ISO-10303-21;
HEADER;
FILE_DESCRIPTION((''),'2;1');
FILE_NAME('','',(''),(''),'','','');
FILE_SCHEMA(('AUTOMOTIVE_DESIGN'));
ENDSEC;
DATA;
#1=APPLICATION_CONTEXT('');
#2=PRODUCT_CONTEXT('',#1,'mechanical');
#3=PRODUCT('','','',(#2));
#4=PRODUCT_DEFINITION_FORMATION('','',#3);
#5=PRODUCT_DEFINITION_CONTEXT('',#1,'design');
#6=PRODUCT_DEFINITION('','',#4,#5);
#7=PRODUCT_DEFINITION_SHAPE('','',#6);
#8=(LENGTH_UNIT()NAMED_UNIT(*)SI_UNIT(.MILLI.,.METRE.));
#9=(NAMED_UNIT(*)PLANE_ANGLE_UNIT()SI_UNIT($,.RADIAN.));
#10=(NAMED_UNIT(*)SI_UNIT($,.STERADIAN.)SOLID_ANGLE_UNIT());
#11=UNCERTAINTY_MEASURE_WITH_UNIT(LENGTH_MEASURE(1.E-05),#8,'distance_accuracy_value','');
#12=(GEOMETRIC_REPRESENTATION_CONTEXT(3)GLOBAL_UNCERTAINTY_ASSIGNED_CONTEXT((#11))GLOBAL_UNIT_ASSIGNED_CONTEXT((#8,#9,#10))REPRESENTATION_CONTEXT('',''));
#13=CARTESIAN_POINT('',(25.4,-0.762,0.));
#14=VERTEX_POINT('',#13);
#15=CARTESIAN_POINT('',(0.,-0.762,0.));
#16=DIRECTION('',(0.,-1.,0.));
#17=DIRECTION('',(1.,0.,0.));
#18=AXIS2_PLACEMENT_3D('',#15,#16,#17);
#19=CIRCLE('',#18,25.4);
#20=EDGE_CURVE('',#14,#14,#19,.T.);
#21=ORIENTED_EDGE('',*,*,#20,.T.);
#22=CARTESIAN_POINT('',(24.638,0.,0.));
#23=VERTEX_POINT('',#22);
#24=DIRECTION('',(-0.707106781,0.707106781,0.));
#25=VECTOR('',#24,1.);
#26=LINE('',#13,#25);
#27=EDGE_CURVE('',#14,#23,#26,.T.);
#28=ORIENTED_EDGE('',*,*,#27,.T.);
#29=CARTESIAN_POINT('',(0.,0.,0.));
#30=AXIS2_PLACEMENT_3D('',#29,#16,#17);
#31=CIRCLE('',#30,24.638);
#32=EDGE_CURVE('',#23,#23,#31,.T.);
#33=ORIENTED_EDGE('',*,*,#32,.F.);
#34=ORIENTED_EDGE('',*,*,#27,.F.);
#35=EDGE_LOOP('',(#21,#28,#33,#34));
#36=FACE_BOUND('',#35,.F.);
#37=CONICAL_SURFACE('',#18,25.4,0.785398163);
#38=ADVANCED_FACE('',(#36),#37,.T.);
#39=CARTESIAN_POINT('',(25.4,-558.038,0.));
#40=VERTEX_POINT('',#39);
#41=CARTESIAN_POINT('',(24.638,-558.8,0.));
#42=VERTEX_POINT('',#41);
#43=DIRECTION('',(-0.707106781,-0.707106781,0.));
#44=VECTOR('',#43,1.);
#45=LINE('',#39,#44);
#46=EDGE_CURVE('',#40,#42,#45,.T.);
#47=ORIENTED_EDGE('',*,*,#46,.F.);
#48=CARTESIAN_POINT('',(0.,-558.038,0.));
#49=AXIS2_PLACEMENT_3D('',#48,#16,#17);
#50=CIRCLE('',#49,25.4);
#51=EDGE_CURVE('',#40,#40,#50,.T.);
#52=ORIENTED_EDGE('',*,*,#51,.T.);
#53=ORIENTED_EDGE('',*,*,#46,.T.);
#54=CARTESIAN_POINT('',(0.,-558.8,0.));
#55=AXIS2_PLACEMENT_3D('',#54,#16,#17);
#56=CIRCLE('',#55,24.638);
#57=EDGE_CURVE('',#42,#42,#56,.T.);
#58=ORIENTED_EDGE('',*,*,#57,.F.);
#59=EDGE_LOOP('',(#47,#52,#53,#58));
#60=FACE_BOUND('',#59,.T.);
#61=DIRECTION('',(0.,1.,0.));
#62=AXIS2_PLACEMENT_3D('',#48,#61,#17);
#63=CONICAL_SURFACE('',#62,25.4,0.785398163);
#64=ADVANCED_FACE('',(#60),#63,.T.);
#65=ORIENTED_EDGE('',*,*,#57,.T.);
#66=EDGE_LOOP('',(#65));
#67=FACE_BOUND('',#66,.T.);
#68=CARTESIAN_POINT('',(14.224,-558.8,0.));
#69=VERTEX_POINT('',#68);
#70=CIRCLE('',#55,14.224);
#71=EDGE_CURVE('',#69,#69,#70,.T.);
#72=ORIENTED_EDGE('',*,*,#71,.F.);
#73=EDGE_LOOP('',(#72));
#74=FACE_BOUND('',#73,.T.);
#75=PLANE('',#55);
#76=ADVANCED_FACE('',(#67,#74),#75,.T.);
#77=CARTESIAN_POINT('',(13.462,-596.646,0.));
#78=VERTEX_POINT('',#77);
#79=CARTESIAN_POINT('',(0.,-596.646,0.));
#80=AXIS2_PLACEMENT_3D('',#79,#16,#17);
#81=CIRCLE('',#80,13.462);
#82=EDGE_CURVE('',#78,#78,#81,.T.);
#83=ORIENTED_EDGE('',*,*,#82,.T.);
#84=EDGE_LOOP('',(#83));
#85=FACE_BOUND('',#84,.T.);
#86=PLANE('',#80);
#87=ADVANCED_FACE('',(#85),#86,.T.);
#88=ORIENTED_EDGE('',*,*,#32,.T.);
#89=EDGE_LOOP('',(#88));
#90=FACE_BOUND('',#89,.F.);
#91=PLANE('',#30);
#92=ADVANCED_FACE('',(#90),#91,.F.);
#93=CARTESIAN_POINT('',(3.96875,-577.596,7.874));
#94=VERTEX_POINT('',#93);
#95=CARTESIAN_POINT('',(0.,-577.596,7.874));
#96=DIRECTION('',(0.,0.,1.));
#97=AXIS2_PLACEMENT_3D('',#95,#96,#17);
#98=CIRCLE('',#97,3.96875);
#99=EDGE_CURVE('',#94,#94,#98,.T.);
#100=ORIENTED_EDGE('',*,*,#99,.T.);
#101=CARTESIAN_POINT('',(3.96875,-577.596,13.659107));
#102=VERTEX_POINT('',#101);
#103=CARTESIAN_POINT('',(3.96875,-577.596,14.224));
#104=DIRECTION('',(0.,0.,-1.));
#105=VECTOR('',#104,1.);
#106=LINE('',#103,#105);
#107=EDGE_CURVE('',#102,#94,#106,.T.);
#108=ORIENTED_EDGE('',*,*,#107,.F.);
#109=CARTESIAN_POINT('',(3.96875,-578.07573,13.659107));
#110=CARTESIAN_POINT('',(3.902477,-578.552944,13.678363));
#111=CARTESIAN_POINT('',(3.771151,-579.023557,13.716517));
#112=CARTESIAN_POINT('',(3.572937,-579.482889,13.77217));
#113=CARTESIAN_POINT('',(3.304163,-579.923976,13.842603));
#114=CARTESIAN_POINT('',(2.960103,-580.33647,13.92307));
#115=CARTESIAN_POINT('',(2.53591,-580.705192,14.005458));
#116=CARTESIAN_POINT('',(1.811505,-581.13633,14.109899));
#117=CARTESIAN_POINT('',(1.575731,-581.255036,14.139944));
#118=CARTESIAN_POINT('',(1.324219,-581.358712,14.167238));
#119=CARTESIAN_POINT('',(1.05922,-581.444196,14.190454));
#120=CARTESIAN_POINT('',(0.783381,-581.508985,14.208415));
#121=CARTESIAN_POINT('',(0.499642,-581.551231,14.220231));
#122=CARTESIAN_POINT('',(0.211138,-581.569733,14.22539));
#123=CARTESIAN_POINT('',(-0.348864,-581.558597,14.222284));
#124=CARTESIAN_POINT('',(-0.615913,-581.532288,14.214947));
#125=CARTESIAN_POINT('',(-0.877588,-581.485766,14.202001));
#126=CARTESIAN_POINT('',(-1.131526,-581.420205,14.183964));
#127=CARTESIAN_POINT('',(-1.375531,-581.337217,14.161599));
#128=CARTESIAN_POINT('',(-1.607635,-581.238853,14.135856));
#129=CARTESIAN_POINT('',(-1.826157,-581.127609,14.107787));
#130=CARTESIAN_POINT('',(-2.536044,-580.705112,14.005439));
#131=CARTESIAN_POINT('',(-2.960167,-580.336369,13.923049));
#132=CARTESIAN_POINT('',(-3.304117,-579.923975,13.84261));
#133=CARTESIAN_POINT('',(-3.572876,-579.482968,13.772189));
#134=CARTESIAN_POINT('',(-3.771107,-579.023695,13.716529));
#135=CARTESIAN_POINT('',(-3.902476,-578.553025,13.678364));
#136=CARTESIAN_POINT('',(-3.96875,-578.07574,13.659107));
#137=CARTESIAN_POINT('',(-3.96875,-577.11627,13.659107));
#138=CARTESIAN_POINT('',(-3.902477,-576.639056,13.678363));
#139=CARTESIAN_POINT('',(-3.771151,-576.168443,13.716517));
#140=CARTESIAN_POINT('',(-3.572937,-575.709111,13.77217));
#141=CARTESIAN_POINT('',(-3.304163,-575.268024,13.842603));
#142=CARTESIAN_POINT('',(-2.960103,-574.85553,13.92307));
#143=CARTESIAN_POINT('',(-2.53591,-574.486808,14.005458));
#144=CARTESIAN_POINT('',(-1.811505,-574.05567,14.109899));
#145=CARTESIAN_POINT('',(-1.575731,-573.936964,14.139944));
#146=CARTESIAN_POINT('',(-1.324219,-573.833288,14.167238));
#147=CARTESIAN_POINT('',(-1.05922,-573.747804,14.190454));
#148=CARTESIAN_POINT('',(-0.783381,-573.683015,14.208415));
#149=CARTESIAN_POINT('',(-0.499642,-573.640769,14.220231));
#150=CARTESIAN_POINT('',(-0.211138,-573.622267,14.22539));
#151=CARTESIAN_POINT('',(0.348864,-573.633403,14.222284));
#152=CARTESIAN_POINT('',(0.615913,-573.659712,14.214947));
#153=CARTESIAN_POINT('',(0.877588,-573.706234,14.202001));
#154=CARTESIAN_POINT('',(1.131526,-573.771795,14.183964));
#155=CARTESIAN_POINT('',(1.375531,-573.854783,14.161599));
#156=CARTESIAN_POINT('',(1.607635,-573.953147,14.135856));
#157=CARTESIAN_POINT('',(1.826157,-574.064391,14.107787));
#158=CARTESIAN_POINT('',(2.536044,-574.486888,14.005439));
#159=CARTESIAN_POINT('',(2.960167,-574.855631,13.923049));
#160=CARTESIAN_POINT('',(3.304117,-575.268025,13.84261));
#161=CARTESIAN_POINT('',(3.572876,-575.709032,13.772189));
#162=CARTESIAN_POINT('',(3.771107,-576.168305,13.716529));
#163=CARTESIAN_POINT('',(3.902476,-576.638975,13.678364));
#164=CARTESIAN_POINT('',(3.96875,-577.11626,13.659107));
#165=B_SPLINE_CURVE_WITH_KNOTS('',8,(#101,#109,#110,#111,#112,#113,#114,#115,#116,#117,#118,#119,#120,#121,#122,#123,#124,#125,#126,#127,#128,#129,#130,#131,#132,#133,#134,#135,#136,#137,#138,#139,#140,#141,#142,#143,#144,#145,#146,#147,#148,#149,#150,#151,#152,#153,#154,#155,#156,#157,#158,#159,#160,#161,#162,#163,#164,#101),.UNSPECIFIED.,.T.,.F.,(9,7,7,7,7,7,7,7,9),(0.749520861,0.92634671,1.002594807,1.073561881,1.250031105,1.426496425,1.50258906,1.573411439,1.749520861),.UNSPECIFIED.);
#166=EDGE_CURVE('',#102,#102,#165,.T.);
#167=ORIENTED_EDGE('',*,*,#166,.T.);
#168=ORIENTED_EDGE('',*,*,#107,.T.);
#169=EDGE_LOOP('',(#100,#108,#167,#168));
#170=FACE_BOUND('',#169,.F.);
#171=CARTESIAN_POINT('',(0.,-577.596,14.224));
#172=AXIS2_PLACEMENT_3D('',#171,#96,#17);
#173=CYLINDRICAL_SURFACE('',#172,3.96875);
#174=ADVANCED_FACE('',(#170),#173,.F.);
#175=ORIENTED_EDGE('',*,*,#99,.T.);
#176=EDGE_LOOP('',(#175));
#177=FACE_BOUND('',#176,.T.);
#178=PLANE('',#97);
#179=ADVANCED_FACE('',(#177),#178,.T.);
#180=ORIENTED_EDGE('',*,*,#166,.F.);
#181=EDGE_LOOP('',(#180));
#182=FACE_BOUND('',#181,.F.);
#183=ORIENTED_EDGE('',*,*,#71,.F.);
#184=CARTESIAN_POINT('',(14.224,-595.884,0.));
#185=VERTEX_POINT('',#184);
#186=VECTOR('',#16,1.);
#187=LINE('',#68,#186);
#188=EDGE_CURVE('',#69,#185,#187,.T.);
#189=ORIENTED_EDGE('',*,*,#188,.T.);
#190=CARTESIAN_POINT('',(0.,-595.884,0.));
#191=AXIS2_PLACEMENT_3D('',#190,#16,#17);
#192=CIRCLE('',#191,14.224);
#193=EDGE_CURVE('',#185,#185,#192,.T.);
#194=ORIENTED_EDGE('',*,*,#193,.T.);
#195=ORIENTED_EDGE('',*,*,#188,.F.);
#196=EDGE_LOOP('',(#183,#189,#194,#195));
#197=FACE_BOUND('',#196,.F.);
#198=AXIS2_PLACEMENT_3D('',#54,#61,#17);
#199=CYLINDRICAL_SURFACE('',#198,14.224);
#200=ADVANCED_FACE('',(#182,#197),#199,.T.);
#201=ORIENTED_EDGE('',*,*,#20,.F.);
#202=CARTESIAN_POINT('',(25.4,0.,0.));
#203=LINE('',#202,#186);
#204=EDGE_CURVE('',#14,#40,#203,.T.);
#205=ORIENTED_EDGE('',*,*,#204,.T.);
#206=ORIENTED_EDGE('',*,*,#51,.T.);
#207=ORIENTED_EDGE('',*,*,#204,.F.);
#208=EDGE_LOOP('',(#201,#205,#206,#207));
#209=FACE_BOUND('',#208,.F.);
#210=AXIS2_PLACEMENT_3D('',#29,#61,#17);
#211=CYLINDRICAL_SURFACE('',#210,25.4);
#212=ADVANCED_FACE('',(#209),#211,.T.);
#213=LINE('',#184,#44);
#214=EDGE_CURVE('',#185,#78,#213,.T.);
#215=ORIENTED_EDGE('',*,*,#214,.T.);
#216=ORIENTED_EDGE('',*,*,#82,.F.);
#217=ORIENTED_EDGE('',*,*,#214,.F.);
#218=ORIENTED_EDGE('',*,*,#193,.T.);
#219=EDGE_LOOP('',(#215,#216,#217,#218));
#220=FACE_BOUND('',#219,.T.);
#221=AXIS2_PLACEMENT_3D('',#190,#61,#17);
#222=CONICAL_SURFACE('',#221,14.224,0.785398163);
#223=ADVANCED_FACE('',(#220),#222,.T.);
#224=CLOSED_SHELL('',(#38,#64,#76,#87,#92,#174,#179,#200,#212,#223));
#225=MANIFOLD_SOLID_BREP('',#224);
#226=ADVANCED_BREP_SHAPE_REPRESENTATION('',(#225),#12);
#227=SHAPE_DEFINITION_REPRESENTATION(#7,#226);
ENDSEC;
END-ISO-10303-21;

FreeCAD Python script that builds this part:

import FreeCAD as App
import Part
import Sketcher
Q = App.Units.Quantity


def edges_at(feature, points):
    """Names of the edges that pass closest to the given points."""
    edges = feature.Shape.Edges
    near = lambda p: min(range(len(edges)), key=lambda i: edges[i].distToShape(Part.Vertex(*p))[0])
    return sorted({f"Edge{near(p) + 1}" for p in points})

doc = App.newDocument("Part")
body = doc.addObject("PartDesign::Body", "Body")

# Sketch on XZ plane
sketch1 = doc.addObject("Sketcher::SketchObject", "Sketch")
body.addObject(sketch1)
sketch1.AttachmentSupport = (doc.XZ_Plane, [""])
sketch1.MapMode = "FlatFace"
sketch1.addGeometry(Part.Circle(App.Vector(0, 0, 0), App.Vector(0, 0, 1), 25.4), False)
sketch1.addConstraint(Sketcher.Constraint("Coincident", 0, 3, -1, 1))
sketch1.addConstraint(Sketcher.Constraint("Diameter", 0, Q("2 in")))
pad1 = doc.addObject("PartDesign::Pad", "Pad")
body.addObject(pad1)
pad1.Profile = sketch1
pad1.Length = Q("22 in")

# Sketch on XZ plane
sketch2 = doc.addObject("Sketcher::SketchObject", "Sketch001")
body.addObject(sketch2)
sketch2.AttachmentSupport = (doc.XZ_Plane, [""])
sketch2.MapMode = "FlatFace"
sketch2.AttachmentOffset = App.Placement(App.Vector(0, 0, 22 * 25.4), App.Rotation())
sketch2.addGeometry(Part.Circle(App.Vector(0, 0, 0), App.Vector(0, 0, 1), 14.224), False)
sketch2.addConstraint(Sketcher.Constraint("Coincident", 0, 3, -1, 1))
sketch2.addConstraint(Sketcher.Constraint("Diameter", 0, Q("1.12 in")))
pad2 = doc.addObject("PartDesign::Pad", "Pad001")
body.addObject(pad2)
pad2.Profile = sketch2
pad2.Length = Q("1.49 in")
doc.recompute()

chamfer = doc.addObject("PartDesign::Chamfer", "Chamfer")
body.addObject(chamfer)
chamfer.Base = (pad2, edges_at(pad2, [(-14.224, -596.646, 0), (-25.4, -558.8, 0), (-25.4, 0, 0)]))
chamfer.Size = Q("0.03 in")

# Sketch on XY plane
sketch3 = doc.addObject("Sketcher::SketchObject", "Sketch002")
body.addObject(sketch3)
sketch3.AttachmentSupport = (doc.XY_Plane, [""])
sketch3.MapMode = "FlatFace"
sketch3.AttachmentOffset = App.Placement(App.Vector(0, 0, 0.56 * 25.4), App.Rotation())
sketch3.addGeometry(Part.Circle(App.Vector(0, -577.596, 0), App.Vector(0, 0, 1), 3.96875), False)
sketch3.addConstraint(Sketcher.Constraint("PointOnObject", 0, 3, -2))
sketch3.addConstraint(Sketcher.Constraint("Diameter", 0, Q("0.3125 in")))
sketch3.addConstraint(Sketcher.Constraint("DistanceY", 0, 3, -1, 1, Q("22.74 in")))
pocket1 = doc.addObject("PartDesign::Pocket", "Pocket")
body.addObject(pocket1)
pocket1.Profile = sketch3
pocket1.Length = Q("0.25 in")

doc.recompute()
